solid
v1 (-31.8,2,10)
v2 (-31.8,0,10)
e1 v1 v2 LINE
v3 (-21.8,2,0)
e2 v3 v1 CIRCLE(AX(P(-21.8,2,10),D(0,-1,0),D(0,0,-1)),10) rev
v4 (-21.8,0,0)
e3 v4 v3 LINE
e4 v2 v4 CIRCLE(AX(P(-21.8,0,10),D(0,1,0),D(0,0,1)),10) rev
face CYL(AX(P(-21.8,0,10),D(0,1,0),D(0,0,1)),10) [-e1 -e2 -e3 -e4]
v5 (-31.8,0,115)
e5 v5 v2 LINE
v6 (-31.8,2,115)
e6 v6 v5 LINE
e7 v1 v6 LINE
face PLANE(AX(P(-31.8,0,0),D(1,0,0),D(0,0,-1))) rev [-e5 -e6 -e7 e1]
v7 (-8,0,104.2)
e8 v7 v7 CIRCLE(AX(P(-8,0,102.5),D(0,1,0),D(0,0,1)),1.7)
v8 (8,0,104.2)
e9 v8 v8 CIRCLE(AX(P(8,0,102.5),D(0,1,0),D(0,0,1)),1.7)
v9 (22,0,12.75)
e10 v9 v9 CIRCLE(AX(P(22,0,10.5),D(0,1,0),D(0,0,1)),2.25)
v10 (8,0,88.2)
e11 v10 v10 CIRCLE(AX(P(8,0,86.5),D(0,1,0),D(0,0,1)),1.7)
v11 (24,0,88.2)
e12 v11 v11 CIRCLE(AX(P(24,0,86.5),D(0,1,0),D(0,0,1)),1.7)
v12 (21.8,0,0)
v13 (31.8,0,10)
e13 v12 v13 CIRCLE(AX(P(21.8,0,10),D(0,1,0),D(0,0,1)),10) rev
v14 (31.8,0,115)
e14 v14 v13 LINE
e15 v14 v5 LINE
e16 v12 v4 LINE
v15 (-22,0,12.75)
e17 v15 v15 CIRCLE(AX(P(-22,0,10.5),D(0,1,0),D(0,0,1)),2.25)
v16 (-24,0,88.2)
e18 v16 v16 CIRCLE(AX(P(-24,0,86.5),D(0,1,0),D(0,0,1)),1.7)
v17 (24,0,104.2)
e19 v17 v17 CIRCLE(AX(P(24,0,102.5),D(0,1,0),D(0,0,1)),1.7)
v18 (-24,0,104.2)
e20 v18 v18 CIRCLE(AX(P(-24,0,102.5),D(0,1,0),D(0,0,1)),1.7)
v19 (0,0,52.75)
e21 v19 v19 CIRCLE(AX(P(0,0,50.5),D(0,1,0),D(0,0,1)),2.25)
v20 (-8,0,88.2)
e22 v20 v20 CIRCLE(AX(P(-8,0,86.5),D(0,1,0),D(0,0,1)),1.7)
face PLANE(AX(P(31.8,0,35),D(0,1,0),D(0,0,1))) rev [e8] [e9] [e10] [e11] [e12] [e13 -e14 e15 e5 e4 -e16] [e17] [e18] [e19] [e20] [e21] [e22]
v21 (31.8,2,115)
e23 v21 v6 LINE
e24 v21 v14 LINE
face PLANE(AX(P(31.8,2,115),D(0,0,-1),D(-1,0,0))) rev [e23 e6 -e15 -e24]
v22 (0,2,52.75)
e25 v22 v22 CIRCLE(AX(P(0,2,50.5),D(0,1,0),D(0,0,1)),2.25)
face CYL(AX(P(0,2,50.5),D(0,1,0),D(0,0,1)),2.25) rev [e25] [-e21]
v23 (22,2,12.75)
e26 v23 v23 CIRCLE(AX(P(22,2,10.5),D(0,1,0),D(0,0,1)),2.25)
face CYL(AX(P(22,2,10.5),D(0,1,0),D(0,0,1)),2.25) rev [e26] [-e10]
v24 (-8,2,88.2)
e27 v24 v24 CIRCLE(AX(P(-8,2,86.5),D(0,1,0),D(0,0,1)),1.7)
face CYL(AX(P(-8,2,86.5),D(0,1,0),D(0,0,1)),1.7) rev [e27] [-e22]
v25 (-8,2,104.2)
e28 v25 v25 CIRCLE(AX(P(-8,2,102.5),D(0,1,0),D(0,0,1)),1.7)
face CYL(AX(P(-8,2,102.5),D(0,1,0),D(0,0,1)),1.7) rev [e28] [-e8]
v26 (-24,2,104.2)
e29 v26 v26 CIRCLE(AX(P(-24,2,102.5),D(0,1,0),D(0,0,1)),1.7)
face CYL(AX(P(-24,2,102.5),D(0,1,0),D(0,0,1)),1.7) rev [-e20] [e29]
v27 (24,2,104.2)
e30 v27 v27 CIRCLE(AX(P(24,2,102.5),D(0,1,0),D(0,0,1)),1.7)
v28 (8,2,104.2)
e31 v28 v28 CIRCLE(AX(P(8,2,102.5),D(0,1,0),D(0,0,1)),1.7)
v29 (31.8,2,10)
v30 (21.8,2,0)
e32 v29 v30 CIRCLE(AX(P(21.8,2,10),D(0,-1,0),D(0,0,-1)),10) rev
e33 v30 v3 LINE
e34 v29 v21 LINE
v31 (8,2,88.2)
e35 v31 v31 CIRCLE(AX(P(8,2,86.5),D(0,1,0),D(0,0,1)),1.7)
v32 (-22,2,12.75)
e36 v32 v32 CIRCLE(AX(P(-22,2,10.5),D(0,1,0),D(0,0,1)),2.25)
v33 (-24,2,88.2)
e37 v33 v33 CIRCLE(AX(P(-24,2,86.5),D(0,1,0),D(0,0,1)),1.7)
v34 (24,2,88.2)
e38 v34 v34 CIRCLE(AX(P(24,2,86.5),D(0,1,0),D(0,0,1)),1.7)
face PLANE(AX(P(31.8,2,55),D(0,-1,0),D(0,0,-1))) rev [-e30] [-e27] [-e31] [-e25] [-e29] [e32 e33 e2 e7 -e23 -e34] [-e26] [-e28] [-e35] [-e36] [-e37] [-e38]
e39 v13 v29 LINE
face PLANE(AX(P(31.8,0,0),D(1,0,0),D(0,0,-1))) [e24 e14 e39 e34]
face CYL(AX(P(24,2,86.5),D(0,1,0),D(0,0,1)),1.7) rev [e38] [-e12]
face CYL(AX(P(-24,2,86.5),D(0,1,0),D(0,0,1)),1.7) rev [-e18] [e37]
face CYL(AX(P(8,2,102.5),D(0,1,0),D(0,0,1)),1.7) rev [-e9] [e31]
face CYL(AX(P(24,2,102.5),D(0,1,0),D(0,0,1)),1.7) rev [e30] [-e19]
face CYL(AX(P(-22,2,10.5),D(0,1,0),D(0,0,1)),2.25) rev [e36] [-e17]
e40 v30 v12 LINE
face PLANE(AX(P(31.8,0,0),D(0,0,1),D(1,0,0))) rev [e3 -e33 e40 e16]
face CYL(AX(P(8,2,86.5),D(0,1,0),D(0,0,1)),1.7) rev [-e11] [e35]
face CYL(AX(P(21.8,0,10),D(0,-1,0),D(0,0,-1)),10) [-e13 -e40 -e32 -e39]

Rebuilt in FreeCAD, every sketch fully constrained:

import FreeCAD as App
import Part
import Sketcher


def edges_at(feature, points):
    """Names of the edges that pass closest to the given points."""
    edges = feature.Shape.Edges
    near = lambda p: min(range(len(edges)), key=lambda i: edges[i].distToShape(Part.Vertex(*p))[0])
    return sorted({f"Edge{near(p) + 1}" for p in points})


def add_polygon(sketch, points):
    """Adds a closed chain of lines whose ends are joined by coincident constraints."""
    first, n = sketch.GeometryCount, len(points)
    for a, b in zip(points, points[1:] + points[:1]):
        sketch.addGeometry(Part.LineSegment(App.Vector(*a, 0), App.Vector(*b, 0)), False)
    for i in range(n):
        sketch.addConstraint(Sketcher.Constraint("Coincident", first + i, 2, first + (i + 1) % n, 1))

doc = App.newDocument("Part")
params = doc.addObject("Spreadsheet::Sheet", "Params")
for row, (alias, value) in enumerate([
    ("sketch1_width", "2 mm"),
    ("sketch1_height", "115 mm"),
    ("pad1_length", "63.6 mm"),
    ("sketch2_diameter", "3.4 mm"),
    ("hole_diameter", "3.4 mm"),
    ("hole_depth", "8.5 mm"),
    ("sketch3_diameter", "4.5 mm"),
    ("hole2_diameter", "4.5 mm"),
    ("hole2_depth", "7.5 mm"),
    ("fillet_radius", "10 mm"),
], start=1):
    params.set(f"A{row}", alias)
    params.set(f"B{row}", "=" + value)
    params.setAlias(f"B{row}", alias)

body = doc.addObject("PartDesign::Body", "Body")

sketch1 = body.newObject("Sketcher::SketchObject", "Sketch")
sketch1.AttachmentSupport = (doc.getObject("YZ_Plane"), [""])
sketch1.MapMode = "FlatFace"
add_polygon(sketch1, [(0, 0), (2, 0), (2, 115), (0, 115)])
sketch1.addConstraint(Sketcher.Constraint("Horizontal", 0))
sketch1.addConstraint(Sketcher.Constraint("Vertical", 1))
sketch1.addConstraint(Sketcher.Constraint("Horizontal", 2))
sketch1.addConstraint(Sketcher.Constraint("Vertical", 3))
sketch1.addConstraint(Sketcher.Constraint("Coincident", 3, 2, -1, 1))
sketch1.addConstraint(Sketcher.Constraint("DistanceX", 0, 1, 0, 2, 2.0))
sketch1.addConstraint(Sketcher.Constraint("DistanceY", 1, 1, 1, 2, 115.0))
sketch1.setExpression("Constraints[9]", "Params.sketch1_width")
sketch1.setExpression("Constraints[10]", "Params.sketch1_height")
pad1 = body.newObject("PartDesign::Pad", "Pad")
pad1.Profile = sketch1
pad1.setExpression("Length", "Params.pad1_length")
pad1.Midplane = True

sketch2 = body.newObject("Sketcher::SketchObject", "Sketch001")
sketch2.AttachmentSupport = (doc.getObject("XZ_Plane"), [""])
sketch2.MapMode = "FlatFace"
sketch2.AttachmentOffset = App.Placement(App.Vector(0, 0, -2), App.Rotation())
sketch2.addGeometry(Part.Circle(App.Vector(-24, 102.5, 0), App.Vector(0, 0, 1), 1.7), False)
sketch2.addGeometry(Part.Circle(App.Vector(-24, 86.5, 0), App.Vector(0, 0, 1), 1.7), False)
sketch2.addGeometry(Part.Circle(App.Vector(-8, 86.5, 0), App.Vector(0, 0, 1), 1.7), False)
sketch2.addGeometry(Part.Circle(App.Vector(-8, 102.5, 0), App.Vector(0, 0, 1), 1.7), False)
sketch2.addGeometry(Part.Circle(App.Vector(24, 102.5, 0), App.Vector(0, 0, 1), 1.7), False)
sketch2.addGeometry(Part.Circle(App.Vector(8, 102.5, 0), App.Vector(0, 0, 1), 1.7), False)
sketch2.addGeometry(Part.Circle(App.Vector(8, 86.5, 0), App.Vector(0, 0, 1), 1.7), False)
sketch2.addGeometry(Part.Circle(App.Vector(24, 86.5, 0), App.Vector(0, 0, 1), 1.7), False)
sketch2.addConstraint(Sketcher.Constraint("Equal", 0, 1))
sketch2.addConstraint(Sketcher.Constraint("Equal", 1, 2))
sketch2.addConstraint(Sketcher.Constraint("Equal", 2, 3))
sketch2.addConstraint(Sketcher.Constraint("Equal", 3, 4))
sketch2.addConstraint(Sketcher.Constraint("Equal", 4, 5))
sketch2.addConstraint(Sketcher.Constraint("Equal", 5, 6))
sketch2.addConstraint(Sketcher.Constraint("Equal", 6, 7))
sketch2.addConstraint(Sketcher.Constraint("Symmetric", 0, 3, 4, 3, -2))
sketch2.addConstraint(Sketcher.Constraint("Symmetric", 3, 3, 5, 3, -2))
sketch2.addConstraint(Sketcher.Constraint("Symmetric", 2, 3, 6, 3, -2))
sketch2.addConstraint(Sketcher.Constraint("Symmetric", 1, 3, 7, 3, -2))
sketch2.addConstraint(Sketcher.Constraint("Horizontal", 1, 3, 2, 3))
sketch2.addConstraint(Sketcher.Constraint("Horizontal", 0, 3, 3, 3))
sketch2.addConstraint(Sketcher.Constraint("Vertical", 0, 3, 1, 3))
sketch2.addConstraint(Sketcher.Constraint("Vertical", 2, 3, 3, 3))
sketch2.addConstraint(Sketcher.Constraint("Diameter", 0, 3.4))
sketch2.addConstraint(Sketcher.Constraint("DistanceX", 0, 3, -1, 1, 24.0))
sketch2.addConstraint(Sketcher.Constraint("DistanceX", 2, 3, -1, 1, 8.0))
sketch2.addConstraint(Sketcher.Constraint("DistanceY", 1, 3, 0, 3, 16.0))
sketch2.addConstraint(Sketcher.Constraint("DistanceY", -1, 1, 0, 3, 102.5))
sketch2.setExpression("Constraints[15]", "Params.sketch2_diameter")
doc.recompute()
hole = body.newObject("PartDesign::Hole", "Hole")
hole.Profile = sketch2
hole.ThreadType = "None"
hole.setExpression("Diameter", "Params.hole_diameter")
hole.DepthType = "Dimension"
hole.setExpression("Depth", "Params.hole_depth")
hole.DrillPoint = "Angled"
hole.DrillPointAngle = 118
hole.Reversed = True

sketch3 = body.newObject("Sketcher::SketchObject", "Sketch002")
sketch3.AttachmentSupport = (doc.getObject("XZ_Plane"), [""])
sketch3.MapMode = "FlatFace"
sketch3.AttachmentOffset = App.Placement(App.Vector(0, 0, -2), App.Rotation())
sketch3.addGeometry(Part.Circle(App.Vector(0, 50.5, 0), App.Vector(0, 0, 1), 2.2), False)
sketch3.addGeometry(Part.Circle(App.Vector(22, 10.5, 0), App.Vector(0, 0, 1), 2.2), False)
sketch3.addGeometry(Part.Circle(App.Vector(-22, 10.5, 0), App.Vector(0, 0, 1), 2.2), False)
sketch3.addConstraint(Sketcher.Constraint("Equal", 0, 1))
sketch3.addConstraint(Sketcher.Constraint("Equal", 1, 2))
sketch3.addConstraint(Sketcher.Constraint("Symmetric", 1, 3, 2, 3, -2))
sketch3.addConstraint(Sketcher.Constraint("PointOnObject", 0, 3, -2))
sketch3.addConstraint(Sketcher.Constraint("Diameter", 0, 4.5))
sketch3.addConstraint(Sketcher.Constraint("DistanceX", -1, 1, 1, 3, 22.0))
sketch3.addConstraint(Sketcher.Constraint("DistanceY", 1, 3, 0, 3, 40.0))
sketch3.addConstraint(Sketcher.Constraint("DistanceY", -1, 1, 0, 3, 50.5))
sketch3.setExpression("Constraints[4]", "Params.sketch3_diameter")
doc.recompute()
hole2 = body.newObject("PartDesign::Hole", "Hole001")
hole2.Profile = sketch3
hole2.ThreadType = "None"
hole2.setExpression("Diameter", "Params.hole2_diameter")
hole2.DepthType = "Dimension"
hole2.setExpression("Depth", "Params.hole2_depth")
hole2.DrillPoint = "Angled"
hole2.DrillPointAngle = 118
hole2.Reversed = True
doc.recompute()

fillet = body.newObject("PartDesign::Fillet", "Fillet")
fillet.Base = (hole2, edges_at(hole2, [(-31.8, 1, 0), (31.8, 1, 0)]))
fillet.setExpression("Radius", "Params.fillet_radius")

doc.recompute()
